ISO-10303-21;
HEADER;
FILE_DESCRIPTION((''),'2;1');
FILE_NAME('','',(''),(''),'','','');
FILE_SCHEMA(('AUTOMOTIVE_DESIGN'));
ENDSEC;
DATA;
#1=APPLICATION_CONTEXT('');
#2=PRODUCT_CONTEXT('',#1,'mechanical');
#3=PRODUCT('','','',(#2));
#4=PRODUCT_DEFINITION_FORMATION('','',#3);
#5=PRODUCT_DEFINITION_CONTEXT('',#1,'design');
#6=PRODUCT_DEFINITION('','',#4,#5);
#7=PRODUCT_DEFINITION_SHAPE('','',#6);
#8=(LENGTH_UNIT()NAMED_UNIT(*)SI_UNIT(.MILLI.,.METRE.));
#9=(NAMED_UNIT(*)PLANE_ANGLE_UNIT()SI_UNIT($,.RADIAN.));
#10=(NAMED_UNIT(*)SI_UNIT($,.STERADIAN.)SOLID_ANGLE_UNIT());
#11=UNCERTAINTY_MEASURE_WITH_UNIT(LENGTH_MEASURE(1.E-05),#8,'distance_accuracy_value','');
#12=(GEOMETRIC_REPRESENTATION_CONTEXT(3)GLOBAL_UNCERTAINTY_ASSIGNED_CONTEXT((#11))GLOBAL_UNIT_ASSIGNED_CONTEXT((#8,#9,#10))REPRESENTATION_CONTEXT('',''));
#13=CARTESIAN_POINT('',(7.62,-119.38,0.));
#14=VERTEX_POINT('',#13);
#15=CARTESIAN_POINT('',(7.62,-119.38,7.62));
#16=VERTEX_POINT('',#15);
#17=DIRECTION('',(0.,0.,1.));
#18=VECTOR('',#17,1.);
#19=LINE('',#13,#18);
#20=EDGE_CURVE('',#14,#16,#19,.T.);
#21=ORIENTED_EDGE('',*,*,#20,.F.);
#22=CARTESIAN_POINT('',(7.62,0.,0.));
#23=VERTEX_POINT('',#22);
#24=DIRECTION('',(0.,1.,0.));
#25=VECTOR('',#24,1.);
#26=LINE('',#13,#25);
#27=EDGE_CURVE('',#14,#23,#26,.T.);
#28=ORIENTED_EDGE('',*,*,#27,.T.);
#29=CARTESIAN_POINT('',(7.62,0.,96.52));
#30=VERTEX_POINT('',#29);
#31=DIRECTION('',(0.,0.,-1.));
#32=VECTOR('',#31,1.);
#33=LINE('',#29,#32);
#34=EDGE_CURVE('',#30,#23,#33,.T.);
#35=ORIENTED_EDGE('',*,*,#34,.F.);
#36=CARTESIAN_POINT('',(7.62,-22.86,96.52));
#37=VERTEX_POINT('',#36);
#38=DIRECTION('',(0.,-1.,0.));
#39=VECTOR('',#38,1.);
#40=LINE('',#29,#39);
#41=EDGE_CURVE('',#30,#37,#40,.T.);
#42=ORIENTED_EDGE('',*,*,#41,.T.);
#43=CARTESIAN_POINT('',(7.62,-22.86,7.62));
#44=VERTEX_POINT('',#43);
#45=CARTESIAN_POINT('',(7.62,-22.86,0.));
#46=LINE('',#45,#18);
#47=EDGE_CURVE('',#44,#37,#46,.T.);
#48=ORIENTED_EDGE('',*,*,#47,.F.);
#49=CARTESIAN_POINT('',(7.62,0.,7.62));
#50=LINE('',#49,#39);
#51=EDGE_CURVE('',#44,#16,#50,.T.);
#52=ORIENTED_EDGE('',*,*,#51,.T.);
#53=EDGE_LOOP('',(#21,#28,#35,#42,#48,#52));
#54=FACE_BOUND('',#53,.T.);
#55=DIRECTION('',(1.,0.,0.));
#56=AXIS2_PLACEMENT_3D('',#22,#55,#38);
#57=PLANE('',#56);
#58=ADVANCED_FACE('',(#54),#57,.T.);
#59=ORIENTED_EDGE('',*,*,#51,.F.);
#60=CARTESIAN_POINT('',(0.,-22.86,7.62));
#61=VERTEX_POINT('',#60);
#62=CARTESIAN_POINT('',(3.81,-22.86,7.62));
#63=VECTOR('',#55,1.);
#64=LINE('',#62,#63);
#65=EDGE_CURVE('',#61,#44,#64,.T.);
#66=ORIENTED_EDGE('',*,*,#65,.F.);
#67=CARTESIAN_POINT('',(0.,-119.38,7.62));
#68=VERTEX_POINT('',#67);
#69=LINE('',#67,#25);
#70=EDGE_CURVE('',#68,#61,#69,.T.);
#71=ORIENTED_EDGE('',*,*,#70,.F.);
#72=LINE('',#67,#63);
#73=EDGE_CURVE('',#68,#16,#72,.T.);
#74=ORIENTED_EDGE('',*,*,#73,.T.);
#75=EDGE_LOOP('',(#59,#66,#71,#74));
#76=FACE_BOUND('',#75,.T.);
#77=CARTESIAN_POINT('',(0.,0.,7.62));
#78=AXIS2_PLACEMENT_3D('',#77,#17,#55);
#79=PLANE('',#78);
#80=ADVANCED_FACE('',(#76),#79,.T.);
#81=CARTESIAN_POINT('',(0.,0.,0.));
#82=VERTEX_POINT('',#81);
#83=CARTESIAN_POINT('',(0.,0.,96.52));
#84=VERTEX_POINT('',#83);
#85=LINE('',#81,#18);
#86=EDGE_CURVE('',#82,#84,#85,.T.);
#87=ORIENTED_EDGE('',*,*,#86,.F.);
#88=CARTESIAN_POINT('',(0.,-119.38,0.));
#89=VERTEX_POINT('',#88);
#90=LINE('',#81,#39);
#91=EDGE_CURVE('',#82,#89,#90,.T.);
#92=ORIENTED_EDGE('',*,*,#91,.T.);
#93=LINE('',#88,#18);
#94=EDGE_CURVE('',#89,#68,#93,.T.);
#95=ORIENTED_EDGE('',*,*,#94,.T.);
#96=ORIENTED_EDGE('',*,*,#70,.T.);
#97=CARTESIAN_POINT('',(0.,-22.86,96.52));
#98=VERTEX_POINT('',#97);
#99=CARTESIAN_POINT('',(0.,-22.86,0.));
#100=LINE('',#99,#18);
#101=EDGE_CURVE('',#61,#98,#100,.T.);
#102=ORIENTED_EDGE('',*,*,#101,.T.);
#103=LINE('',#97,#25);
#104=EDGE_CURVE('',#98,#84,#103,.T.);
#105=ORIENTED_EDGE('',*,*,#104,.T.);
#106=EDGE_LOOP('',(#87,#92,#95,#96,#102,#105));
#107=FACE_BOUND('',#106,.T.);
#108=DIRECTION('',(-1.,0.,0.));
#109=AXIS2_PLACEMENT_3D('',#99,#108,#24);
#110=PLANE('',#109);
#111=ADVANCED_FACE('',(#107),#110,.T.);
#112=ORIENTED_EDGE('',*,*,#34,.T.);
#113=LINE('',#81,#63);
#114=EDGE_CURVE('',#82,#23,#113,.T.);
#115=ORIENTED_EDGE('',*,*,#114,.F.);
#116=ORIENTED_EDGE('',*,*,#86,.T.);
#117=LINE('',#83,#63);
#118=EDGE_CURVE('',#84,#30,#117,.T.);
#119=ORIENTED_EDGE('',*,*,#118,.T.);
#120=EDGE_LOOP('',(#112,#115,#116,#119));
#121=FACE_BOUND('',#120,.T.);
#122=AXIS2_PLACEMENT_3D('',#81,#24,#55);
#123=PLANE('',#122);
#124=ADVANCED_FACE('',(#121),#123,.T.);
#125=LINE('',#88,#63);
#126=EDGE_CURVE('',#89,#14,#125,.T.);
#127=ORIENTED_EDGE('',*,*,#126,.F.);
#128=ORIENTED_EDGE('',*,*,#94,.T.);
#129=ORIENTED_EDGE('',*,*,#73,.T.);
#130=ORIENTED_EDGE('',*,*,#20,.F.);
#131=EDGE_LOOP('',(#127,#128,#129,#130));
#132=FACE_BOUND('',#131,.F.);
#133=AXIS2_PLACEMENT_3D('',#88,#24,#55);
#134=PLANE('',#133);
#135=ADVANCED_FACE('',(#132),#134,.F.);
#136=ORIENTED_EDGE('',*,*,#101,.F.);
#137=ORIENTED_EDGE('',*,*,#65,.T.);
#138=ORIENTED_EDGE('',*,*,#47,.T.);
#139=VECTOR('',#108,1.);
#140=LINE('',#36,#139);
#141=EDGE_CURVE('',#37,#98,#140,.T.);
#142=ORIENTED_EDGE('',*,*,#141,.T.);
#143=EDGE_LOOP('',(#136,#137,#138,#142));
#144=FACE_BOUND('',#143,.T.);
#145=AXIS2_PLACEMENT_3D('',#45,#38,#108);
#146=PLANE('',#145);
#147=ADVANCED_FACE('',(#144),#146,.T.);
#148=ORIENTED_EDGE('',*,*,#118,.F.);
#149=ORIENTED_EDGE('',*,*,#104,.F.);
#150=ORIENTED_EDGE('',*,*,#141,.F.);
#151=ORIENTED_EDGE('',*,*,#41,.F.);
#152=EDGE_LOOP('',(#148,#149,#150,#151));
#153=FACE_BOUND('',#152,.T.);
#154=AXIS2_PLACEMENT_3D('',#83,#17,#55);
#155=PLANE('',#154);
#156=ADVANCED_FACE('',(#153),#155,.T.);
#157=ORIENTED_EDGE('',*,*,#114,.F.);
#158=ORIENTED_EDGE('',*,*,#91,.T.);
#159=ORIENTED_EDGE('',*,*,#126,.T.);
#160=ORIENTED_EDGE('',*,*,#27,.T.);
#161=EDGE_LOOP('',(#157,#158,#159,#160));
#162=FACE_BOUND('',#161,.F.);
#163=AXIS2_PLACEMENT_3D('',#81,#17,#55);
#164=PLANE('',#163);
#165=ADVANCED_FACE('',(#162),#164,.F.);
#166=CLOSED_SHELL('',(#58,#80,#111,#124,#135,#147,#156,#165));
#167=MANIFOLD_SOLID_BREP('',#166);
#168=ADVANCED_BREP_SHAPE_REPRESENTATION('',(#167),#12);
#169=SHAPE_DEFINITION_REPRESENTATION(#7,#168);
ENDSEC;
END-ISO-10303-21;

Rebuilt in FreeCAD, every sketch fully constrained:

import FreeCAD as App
import Part
import Sketcher
Q = App.Units.Quantity

doc = App.newDocument("Part")
body = doc.addObject("PartDesign::Body", "Body")

# Sketch on XY plane
sketch1 = doc.addObject("Sketcher::SketchObject", "Sketch")
body.addObject(sketch1)
sketch1.AttachmentSupport = (doc.XY_Plane, [""])
sketch1.MapMode = "FlatFace"
sketch1.addGeometry([
    Part.LineSegment(App.Vector(8, 0, 0), App.Vector(0, 0, 0)),
    Part.LineSegment(App.Vector(0, 0, 0), App.Vector(0, -119, 0)),
    Part.LineSegment(App.Vector(0, -119, 0), App.Vector(8, -119, 0)),
    Part.LineSegment(App.Vector(8, -119, 0), App.Vector(8, 0, 0)),
], False)
sketch1.addConstraint([
    Sketcher.Constraint("Coincident", 0, 2, 1, 1),
    Sketcher.Constraint("Coincident", 1, 2, 2, 1),
    Sketcher.Constraint("Coincident", 2, 2, 3, 1),
    Sketcher.Constraint("Coincident", 3, 2, 0, 1),
    Sketcher.Constraint("Horizontal", 0),
    Sketcher.Constraint("Vertical", 1),
    Sketcher.Constraint("Horizontal", 2),
    Sketcher.Constraint("Vertical", 3),
    Sketcher.Constraint("Coincident", 0, 2, -1, 1),
    Sketcher.Constraint("DistanceX", 0, 2, 0, 1, Q("0.3 in")),
    Sketcher.Constraint("DistanceY", 1, 2, 1, 1, Q("4.7 in")),
])
pad1 = doc.addObject("PartDesign::Pad", "Pad")
body.addObject(pad1)
pad1.Profile = sketch1
pad1.Length = Q("0.3 in")

# Sketch on XY plane
sketch2 = doc.addObject("Sketcher::SketchObject", "Sketch001")
body.addObject(sketch2)
sketch2.AttachmentSupport = (doc.XY_Plane, [""])
sketch2.MapMode = "FlatFace"
sketch2.addGeometry([
    Part.LineSegment(App.Vector(8, 0, 0), App.Vector(0, 0, 0)),
    Part.LineSegment(App.Vector(0, 0, 0), App.Vector(0, -23, 0)),
    Part.LineSegment(App.Vector(0, -23, 0), App.Vector(8, -23, 0)),
    Part.LineSegment(App.Vector(8, -23, 0), App.Vector(8, 0, 0)),
], False)
sketch2.addConstraint([
    Sketcher.Constraint("Coincident", 0, 2, 1, 1),
    Sketcher.Constraint("Coincident", 1, 2, 2, 1),
    Sketcher.Constraint("Coincident", 2, 2, 3, 1),
    Sketcher.Constraint("Coincident", 3, 2, 0, 1),
    Sketcher.Constraint("Horizontal", 0),
    Sketcher.Constraint("Vertical", 1),
    Sketcher.Constraint("Horizontal", 2),
    Sketcher.Constraint("Vertical", 3),
    Sketcher.Constraint("Coincident", 0, 2, -1, 1),
    Sketcher.Constraint("DistanceX", 0, 2, 0, 1, Q("0.3 in")),
    Sketcher.Constraint("DistanceY", 1, 2, 1, 1, Q("0.9 in")),
])
pad2 = doc.addObject("PartDesign::Pad", "Pad001")
body.addObject(pad2)
pad2.Profile = sketch2
pad2.Length = Q("3.8 in")

doc.recompute()
